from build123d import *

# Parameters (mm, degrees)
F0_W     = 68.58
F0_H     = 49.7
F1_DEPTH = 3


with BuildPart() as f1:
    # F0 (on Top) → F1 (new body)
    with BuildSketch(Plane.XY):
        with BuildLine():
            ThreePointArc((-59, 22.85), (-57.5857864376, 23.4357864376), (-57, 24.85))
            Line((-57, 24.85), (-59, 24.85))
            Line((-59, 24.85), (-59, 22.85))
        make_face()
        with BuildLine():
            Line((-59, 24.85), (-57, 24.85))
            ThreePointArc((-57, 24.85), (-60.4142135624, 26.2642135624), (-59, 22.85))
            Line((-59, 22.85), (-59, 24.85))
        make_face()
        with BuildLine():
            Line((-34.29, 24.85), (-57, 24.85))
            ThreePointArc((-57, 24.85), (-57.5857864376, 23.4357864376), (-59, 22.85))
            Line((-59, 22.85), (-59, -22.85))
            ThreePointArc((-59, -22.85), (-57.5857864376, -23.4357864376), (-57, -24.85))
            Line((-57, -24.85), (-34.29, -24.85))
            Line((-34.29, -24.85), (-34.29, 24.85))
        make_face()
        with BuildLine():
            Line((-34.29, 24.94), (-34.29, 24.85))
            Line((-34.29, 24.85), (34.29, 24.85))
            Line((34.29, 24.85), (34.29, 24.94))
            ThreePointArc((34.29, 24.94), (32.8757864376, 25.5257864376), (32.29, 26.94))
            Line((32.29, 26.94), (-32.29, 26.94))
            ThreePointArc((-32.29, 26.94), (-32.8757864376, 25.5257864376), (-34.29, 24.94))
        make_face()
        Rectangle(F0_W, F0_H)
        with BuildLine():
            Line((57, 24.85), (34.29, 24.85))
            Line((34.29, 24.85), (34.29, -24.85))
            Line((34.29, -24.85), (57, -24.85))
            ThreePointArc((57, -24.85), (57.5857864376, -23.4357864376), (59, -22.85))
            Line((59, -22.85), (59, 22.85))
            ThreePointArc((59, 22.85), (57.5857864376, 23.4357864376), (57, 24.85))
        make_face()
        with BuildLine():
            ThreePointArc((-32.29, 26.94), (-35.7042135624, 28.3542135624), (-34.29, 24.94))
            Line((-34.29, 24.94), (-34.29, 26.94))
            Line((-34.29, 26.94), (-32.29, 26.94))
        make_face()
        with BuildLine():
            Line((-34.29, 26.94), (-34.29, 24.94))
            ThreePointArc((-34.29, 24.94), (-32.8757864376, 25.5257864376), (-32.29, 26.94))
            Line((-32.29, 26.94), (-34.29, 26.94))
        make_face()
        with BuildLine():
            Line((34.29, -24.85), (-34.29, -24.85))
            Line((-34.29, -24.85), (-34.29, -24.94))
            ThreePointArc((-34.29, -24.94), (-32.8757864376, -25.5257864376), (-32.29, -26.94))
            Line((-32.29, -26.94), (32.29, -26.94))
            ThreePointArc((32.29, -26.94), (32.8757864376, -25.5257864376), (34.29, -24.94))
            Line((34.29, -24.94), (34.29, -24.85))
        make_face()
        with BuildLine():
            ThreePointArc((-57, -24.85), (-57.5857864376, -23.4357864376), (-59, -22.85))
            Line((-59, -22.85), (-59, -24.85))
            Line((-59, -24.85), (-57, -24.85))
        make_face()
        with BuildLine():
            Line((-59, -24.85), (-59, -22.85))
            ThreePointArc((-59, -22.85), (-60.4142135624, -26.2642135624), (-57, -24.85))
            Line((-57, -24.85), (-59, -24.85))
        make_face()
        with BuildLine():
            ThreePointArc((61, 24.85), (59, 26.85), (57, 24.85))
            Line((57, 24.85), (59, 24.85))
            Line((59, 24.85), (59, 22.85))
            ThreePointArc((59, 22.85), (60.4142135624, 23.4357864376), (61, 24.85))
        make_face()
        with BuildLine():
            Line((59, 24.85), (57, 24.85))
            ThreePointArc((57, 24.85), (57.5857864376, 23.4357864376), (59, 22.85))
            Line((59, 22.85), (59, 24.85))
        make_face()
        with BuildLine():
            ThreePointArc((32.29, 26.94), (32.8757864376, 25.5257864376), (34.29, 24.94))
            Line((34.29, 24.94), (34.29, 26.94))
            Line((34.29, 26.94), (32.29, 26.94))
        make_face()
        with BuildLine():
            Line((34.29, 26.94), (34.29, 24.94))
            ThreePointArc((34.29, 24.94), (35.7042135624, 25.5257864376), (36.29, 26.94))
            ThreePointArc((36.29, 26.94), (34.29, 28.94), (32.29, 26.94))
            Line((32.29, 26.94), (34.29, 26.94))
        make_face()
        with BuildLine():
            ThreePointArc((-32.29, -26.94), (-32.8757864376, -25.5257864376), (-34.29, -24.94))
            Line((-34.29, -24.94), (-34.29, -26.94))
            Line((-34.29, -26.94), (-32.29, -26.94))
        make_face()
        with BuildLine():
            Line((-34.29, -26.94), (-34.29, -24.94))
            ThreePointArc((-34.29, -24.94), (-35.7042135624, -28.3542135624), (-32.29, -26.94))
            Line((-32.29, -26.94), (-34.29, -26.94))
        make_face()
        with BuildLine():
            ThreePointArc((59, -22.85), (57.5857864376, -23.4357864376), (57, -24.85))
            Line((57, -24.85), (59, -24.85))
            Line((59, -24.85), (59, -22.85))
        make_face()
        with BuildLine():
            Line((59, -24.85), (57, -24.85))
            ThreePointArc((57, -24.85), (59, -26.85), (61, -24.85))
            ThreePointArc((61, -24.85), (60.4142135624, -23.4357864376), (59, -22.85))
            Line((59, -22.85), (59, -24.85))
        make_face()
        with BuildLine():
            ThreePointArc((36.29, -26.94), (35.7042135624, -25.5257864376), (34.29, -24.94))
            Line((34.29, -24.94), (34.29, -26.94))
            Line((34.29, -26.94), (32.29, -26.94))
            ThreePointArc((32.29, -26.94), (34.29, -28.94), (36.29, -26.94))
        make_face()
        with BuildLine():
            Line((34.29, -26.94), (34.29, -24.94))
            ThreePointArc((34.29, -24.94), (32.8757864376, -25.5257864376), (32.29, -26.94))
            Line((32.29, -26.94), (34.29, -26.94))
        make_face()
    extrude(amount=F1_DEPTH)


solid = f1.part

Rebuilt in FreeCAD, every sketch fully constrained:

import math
import FreeCAD as App
import Part
import Sketcher
from FreeCAD import Vector
Q = App.Units.Quantity

doc = App.newDocument("Part")
body = doc.addObject("PartDesign::Body", "Body")

# Sketch on XY plane
sketch1 = body.newObject("Sketcher::SketchObject", "Sketch")
sketch1.AttachmentSupport = (doc.getObject("XY_Plane"), [""])
sketch1.MapMode = "FlatFace"
sketch1.addGeometry([
    Part.ArcOfCircle(Part.Circle(Vector(-59, 24.85, 0), Vector(0, 0, 1), 2), math.radians(0), math.radians(270)),  # 0
    Part.LineSegment(Vector(-59, 22.85, 0), Vector(-59, -22.85, 0)),  # 1
    Part.ArcOfCircle(Part.Circle(Vector(-59, -24.85, 0), Vector(0, 0, 1), 2), math.radians(90), math.radians(360)),  # 2
    Part.LineSegment(Vector(-57, -24.85, 0), Vector(-34.29, -24.85, 0)),  # 3
    Part.LineSegment(Vector(-34.29, -24.85, 0), Vector(-34.29, -24.94, 0)),  # 4
    Part.ArcOfCircle(Part.Circle(Vector(-34.29, -26.94, 0), Vector(0, 0, 1), 2), math.radians(90), math.radians(360)),  # 5
    Part.LineSegment(Vector(-32.29, -26.94, 0), Vector(32.29, -26.94, 0)),  # 6
    Part.ArcOfCircle(Part.Circle(Vector(34.29, -26.94, 0), Vector(0, 0, 1), 2), math.radians(180), math.radians(360)),  # 7
    Part.ArcOfCircle(Part.Circle(Vector(34.29, -26.94, 0), Vector(0, 0, 1), 2), math.radians(0), math.radians(90)),  # 8
    Part.LineSegment(Vector(34.29, -24.94, 0), Vector(34.29, -24.85, 0)),  # 9
    Part.LineSegment(Vector(34.29, -24.85, 0), Vector(57, -24.85, 0)),  # 10
    Part.ArcOfCircle(Part.Circle(Vector(59, -24.85, 0), Vector(0, 0, 1), 2), math.radians(180), math.radians(360)),  # 11
    Part.ArcOfCircle(Part.Circle(Vector(59, -24.85, 0), Vector(0, 0, 1), 2), math.radians(0), math.radians(90)),  # 12
    Part.LineSegment(Vector(59, -22.85, 0), Vector(59, 22.85, 0)),  # 13
    Part.ArcOfCircle(Part.Circle(Vector(59, 24.85, 0), Vector(0, 0, 1), 2), math.radians(-90), math.radians(0)),  # 14
    Part.ArcOfCircle(Part.Circle(Vector(59, 24.85, 0), Vector(0, 0, 1), 2), math.radians(0), math.radians(180)),  # 15
    Part.LineSegment(Vector(57, 24.85, 0), Vector(34.29, 24.85, 0)),  # 16
    Part.LineSegment(Vector(34.29, 24.85, 0), Vector(34.29, 24.94, 0)),  # 17
    Part.ArcOfCircle(Part.Circle(Vector(34.29, 26.94, 0), Vector(0, 0, 1), 2), math.radians(-90), math.radians(0)),  # 18
    Part.ArcOfCircle(Part.Circle(Vector(34.29, 26.94, 0), Vector(0, 0, 1), 2), math.radians(0), math.radians(180)),  # 19
    Part.LineSegment(Vector(32.29, 26.94, 0), Vector(-32.29, 26.94, 0)),  # 20
    Part.ArcOfCircle(Part.Circle(Vector(-34.29, 26.94, 0), Vector(0, 0, 1), 2), math.radians(0), math.radians(270)),  # 21
    Part.LineSegment(Vector(-34.29, 24.94, 0), Vector(-34.29, 24.85, 0)),  # 22
    Part.LineSegment(Vector(-34.29, 24.85, 0), Vector(-57, 24.85, 0)),  # 23
], False)
sketch1.addConstraint([
    Sketcher.Constraint("Coincident", 0, 2, 1, 1),
    Sketcher.Constraint("Coincident", 1, 2, 2, 1),
    Sketcher.Constraint("Coincident", 2, 2, 3, 1),
    Sketcher.Constraint("Coincident", 3, 2, 4, 1),
    Sketcher.Constraint("Coincident", 4, 2, 5, 1),
    Sketcher.Constraint("Coincident", 5, 2, 6, 1),
    Sketcher.Constraint("Coincident", 6, 2, 7, 1),
    Sketcher.Constraint("Tangent", 7, 2, 8, 1),
    Sketcher.Constraint("Coincident", 8, 2, 9, 1),
    Sketcher.Constraint("Coincident", 9, 2, 10, 1),
    Sketcher.Constraint("Coincident", 10, 2, 11, 1),
    Sketcher.Constraint("Tangent", 11, 2, 12, 1),
    Sketcher.Constraint("Coincident", 12, 2, 13, 1),
    Sketcher.Constraint("Coincident", 13, 2, 14, 1),
    Sketcher.Constraint("Tangent", 14, 2, 15, 1),
    Sketcher.Constraint("Coincident", 15, 2, 16, 1),
    Sketcher.Constraint("Coincident", 16, 2, 17, 1),
    Sketcher.Constraint("Coincident", 17, 2, 18, 1),
    Sketcher.Constraint("Tangent", 18, 2, 19, 1),
    Sketcher.Constraint("Coincident", 19, 2, 20, 1),
    Sketcher.Constraint("Coincident", 20, 2, 21, 1),
    Sketcher.Constraint("Coincident", 21, 2, 22, 1),
    Sketcher.Constraint("Coincident", 22, 2, 23, 1),
    Sketcher.Constraint("Coincident", 23, 2, 0, 1),
    Sketcher.Constraint("Vertical", 1),
    Sketcher.Constraint("Horizontal", 3),
    Sketcher.Constraint("Vertical", 4),
    Sketcher.Constraint("Horizontal", 6),
    Sketcher.Constraint("Vertical", 9),
    Sketcher.Constraint("Horizontal", 10),
    Sketcher.Constraint("Vertical", 13),
    Sketcher.Constraint("Horizontal", 16),
    Sketcher.Constraint("Vertical", 17),
    Sketcher.Constraint("Horizontal", 20),
    Sketcher.Constraint("Vertical", 22),
    Sketcher.Constraint("Horizontal", 23),
    Sketcher.Constraint("Equal", 0, 2),
    Sketcher.Constraint("Equal", 2, 5),
    Sketcher.Constraint("Equal", 5, 7),
    Sketcher.Constraint("Equal", 7, 8),
    Sketcher.Constraint("Equal", 8, 11),
    Sketcher.Constraint("Equal", 11, 12),
    Sketcher.Constraint("Equal", 12, 14),
    Sketcher.Constraint("Equal", 14, 15),
    Sketcher.Constraint("Equal", 15, 18),
    Sketcher.Constraint("Equal", 18, 19),
    Sketcher.Constraint("Equal", 19, 21),
    Sketcher.Constraint("Symmetric", 0, 3, 11, 3, -1, 1),
    Sketcher.Constraint("Symmetric", 2, 3, 14, 3, -1, 1),
    Sketcher.Constraint("Symmetric", 5, 3, 18, 3, -1, 1),
    Sketcher.Constraint("Symmetric", 7, 3, 21, 3, -1, 1),
    Sketcher.Constraint("Symmetric", 3, 2, 16, 2, -1, 1),
    Sketcher.Constraint("Symmetric", 9, 2, 22, 2, -1, 1),
    Sketcher.Constraint("Symmetric", 5, 3, 7, 3, -2),
    Sketcher.Constraint("Symmetric", 2, 3, 11, 3, -2),
    Sketcher.Constraint("Symmetric", 3, 2, 9, 2, -2),
    Sketcher.Constraint("Horizontal", 12, 3, 2, 2),
    Sketcher.Constraint("Horizontal", 8, 3, 5, 2),
    Sketcher.Constraint("Horizontal", 6, 2, 7, 2),
    Sketcher.Constraint("Horizontal", 10, 2, 11, 2),
    Sketcher.Constraint("Horizontal", 15, 3, 14, 2),
    Sketcher.Constraint("Horizontal", 21, 3, 18, 2),
    Sketcher.Constraint("Horizontal", 18, 2, 19, 2),
    Sketcher.Constraint("Vertical", 2, 3, 0, 2),
    Sketcher.Constraint("Vertical", 21, 3, 3, 2),
    Sketcher.Constraint("Vertical", 15, 3, 12, 2),
    Sketcher.Constraint("Radius", 0, Q("2 mm")),
    Sketcher.Constraint("DistanceY", 1, 2, 1, 1, Q("45.7 mm")),
    Sketcher.Constraint("DistanceX", 0, 3, -1, 1, Q("59 mm")),
    Sketcher.Constraint("DistanceX", 3, 1, 3, 2, Q("22.71 mm")),
    Sketcher.Constraint("DistanceY", 4, 2, 4, 1, Q("0.09 mm")),
])
pad1 = body.newObject("PartDesign::Pad", "Pad")
pad1.Profile = sketch1
pad1.Length = 3

doc.recompute()
